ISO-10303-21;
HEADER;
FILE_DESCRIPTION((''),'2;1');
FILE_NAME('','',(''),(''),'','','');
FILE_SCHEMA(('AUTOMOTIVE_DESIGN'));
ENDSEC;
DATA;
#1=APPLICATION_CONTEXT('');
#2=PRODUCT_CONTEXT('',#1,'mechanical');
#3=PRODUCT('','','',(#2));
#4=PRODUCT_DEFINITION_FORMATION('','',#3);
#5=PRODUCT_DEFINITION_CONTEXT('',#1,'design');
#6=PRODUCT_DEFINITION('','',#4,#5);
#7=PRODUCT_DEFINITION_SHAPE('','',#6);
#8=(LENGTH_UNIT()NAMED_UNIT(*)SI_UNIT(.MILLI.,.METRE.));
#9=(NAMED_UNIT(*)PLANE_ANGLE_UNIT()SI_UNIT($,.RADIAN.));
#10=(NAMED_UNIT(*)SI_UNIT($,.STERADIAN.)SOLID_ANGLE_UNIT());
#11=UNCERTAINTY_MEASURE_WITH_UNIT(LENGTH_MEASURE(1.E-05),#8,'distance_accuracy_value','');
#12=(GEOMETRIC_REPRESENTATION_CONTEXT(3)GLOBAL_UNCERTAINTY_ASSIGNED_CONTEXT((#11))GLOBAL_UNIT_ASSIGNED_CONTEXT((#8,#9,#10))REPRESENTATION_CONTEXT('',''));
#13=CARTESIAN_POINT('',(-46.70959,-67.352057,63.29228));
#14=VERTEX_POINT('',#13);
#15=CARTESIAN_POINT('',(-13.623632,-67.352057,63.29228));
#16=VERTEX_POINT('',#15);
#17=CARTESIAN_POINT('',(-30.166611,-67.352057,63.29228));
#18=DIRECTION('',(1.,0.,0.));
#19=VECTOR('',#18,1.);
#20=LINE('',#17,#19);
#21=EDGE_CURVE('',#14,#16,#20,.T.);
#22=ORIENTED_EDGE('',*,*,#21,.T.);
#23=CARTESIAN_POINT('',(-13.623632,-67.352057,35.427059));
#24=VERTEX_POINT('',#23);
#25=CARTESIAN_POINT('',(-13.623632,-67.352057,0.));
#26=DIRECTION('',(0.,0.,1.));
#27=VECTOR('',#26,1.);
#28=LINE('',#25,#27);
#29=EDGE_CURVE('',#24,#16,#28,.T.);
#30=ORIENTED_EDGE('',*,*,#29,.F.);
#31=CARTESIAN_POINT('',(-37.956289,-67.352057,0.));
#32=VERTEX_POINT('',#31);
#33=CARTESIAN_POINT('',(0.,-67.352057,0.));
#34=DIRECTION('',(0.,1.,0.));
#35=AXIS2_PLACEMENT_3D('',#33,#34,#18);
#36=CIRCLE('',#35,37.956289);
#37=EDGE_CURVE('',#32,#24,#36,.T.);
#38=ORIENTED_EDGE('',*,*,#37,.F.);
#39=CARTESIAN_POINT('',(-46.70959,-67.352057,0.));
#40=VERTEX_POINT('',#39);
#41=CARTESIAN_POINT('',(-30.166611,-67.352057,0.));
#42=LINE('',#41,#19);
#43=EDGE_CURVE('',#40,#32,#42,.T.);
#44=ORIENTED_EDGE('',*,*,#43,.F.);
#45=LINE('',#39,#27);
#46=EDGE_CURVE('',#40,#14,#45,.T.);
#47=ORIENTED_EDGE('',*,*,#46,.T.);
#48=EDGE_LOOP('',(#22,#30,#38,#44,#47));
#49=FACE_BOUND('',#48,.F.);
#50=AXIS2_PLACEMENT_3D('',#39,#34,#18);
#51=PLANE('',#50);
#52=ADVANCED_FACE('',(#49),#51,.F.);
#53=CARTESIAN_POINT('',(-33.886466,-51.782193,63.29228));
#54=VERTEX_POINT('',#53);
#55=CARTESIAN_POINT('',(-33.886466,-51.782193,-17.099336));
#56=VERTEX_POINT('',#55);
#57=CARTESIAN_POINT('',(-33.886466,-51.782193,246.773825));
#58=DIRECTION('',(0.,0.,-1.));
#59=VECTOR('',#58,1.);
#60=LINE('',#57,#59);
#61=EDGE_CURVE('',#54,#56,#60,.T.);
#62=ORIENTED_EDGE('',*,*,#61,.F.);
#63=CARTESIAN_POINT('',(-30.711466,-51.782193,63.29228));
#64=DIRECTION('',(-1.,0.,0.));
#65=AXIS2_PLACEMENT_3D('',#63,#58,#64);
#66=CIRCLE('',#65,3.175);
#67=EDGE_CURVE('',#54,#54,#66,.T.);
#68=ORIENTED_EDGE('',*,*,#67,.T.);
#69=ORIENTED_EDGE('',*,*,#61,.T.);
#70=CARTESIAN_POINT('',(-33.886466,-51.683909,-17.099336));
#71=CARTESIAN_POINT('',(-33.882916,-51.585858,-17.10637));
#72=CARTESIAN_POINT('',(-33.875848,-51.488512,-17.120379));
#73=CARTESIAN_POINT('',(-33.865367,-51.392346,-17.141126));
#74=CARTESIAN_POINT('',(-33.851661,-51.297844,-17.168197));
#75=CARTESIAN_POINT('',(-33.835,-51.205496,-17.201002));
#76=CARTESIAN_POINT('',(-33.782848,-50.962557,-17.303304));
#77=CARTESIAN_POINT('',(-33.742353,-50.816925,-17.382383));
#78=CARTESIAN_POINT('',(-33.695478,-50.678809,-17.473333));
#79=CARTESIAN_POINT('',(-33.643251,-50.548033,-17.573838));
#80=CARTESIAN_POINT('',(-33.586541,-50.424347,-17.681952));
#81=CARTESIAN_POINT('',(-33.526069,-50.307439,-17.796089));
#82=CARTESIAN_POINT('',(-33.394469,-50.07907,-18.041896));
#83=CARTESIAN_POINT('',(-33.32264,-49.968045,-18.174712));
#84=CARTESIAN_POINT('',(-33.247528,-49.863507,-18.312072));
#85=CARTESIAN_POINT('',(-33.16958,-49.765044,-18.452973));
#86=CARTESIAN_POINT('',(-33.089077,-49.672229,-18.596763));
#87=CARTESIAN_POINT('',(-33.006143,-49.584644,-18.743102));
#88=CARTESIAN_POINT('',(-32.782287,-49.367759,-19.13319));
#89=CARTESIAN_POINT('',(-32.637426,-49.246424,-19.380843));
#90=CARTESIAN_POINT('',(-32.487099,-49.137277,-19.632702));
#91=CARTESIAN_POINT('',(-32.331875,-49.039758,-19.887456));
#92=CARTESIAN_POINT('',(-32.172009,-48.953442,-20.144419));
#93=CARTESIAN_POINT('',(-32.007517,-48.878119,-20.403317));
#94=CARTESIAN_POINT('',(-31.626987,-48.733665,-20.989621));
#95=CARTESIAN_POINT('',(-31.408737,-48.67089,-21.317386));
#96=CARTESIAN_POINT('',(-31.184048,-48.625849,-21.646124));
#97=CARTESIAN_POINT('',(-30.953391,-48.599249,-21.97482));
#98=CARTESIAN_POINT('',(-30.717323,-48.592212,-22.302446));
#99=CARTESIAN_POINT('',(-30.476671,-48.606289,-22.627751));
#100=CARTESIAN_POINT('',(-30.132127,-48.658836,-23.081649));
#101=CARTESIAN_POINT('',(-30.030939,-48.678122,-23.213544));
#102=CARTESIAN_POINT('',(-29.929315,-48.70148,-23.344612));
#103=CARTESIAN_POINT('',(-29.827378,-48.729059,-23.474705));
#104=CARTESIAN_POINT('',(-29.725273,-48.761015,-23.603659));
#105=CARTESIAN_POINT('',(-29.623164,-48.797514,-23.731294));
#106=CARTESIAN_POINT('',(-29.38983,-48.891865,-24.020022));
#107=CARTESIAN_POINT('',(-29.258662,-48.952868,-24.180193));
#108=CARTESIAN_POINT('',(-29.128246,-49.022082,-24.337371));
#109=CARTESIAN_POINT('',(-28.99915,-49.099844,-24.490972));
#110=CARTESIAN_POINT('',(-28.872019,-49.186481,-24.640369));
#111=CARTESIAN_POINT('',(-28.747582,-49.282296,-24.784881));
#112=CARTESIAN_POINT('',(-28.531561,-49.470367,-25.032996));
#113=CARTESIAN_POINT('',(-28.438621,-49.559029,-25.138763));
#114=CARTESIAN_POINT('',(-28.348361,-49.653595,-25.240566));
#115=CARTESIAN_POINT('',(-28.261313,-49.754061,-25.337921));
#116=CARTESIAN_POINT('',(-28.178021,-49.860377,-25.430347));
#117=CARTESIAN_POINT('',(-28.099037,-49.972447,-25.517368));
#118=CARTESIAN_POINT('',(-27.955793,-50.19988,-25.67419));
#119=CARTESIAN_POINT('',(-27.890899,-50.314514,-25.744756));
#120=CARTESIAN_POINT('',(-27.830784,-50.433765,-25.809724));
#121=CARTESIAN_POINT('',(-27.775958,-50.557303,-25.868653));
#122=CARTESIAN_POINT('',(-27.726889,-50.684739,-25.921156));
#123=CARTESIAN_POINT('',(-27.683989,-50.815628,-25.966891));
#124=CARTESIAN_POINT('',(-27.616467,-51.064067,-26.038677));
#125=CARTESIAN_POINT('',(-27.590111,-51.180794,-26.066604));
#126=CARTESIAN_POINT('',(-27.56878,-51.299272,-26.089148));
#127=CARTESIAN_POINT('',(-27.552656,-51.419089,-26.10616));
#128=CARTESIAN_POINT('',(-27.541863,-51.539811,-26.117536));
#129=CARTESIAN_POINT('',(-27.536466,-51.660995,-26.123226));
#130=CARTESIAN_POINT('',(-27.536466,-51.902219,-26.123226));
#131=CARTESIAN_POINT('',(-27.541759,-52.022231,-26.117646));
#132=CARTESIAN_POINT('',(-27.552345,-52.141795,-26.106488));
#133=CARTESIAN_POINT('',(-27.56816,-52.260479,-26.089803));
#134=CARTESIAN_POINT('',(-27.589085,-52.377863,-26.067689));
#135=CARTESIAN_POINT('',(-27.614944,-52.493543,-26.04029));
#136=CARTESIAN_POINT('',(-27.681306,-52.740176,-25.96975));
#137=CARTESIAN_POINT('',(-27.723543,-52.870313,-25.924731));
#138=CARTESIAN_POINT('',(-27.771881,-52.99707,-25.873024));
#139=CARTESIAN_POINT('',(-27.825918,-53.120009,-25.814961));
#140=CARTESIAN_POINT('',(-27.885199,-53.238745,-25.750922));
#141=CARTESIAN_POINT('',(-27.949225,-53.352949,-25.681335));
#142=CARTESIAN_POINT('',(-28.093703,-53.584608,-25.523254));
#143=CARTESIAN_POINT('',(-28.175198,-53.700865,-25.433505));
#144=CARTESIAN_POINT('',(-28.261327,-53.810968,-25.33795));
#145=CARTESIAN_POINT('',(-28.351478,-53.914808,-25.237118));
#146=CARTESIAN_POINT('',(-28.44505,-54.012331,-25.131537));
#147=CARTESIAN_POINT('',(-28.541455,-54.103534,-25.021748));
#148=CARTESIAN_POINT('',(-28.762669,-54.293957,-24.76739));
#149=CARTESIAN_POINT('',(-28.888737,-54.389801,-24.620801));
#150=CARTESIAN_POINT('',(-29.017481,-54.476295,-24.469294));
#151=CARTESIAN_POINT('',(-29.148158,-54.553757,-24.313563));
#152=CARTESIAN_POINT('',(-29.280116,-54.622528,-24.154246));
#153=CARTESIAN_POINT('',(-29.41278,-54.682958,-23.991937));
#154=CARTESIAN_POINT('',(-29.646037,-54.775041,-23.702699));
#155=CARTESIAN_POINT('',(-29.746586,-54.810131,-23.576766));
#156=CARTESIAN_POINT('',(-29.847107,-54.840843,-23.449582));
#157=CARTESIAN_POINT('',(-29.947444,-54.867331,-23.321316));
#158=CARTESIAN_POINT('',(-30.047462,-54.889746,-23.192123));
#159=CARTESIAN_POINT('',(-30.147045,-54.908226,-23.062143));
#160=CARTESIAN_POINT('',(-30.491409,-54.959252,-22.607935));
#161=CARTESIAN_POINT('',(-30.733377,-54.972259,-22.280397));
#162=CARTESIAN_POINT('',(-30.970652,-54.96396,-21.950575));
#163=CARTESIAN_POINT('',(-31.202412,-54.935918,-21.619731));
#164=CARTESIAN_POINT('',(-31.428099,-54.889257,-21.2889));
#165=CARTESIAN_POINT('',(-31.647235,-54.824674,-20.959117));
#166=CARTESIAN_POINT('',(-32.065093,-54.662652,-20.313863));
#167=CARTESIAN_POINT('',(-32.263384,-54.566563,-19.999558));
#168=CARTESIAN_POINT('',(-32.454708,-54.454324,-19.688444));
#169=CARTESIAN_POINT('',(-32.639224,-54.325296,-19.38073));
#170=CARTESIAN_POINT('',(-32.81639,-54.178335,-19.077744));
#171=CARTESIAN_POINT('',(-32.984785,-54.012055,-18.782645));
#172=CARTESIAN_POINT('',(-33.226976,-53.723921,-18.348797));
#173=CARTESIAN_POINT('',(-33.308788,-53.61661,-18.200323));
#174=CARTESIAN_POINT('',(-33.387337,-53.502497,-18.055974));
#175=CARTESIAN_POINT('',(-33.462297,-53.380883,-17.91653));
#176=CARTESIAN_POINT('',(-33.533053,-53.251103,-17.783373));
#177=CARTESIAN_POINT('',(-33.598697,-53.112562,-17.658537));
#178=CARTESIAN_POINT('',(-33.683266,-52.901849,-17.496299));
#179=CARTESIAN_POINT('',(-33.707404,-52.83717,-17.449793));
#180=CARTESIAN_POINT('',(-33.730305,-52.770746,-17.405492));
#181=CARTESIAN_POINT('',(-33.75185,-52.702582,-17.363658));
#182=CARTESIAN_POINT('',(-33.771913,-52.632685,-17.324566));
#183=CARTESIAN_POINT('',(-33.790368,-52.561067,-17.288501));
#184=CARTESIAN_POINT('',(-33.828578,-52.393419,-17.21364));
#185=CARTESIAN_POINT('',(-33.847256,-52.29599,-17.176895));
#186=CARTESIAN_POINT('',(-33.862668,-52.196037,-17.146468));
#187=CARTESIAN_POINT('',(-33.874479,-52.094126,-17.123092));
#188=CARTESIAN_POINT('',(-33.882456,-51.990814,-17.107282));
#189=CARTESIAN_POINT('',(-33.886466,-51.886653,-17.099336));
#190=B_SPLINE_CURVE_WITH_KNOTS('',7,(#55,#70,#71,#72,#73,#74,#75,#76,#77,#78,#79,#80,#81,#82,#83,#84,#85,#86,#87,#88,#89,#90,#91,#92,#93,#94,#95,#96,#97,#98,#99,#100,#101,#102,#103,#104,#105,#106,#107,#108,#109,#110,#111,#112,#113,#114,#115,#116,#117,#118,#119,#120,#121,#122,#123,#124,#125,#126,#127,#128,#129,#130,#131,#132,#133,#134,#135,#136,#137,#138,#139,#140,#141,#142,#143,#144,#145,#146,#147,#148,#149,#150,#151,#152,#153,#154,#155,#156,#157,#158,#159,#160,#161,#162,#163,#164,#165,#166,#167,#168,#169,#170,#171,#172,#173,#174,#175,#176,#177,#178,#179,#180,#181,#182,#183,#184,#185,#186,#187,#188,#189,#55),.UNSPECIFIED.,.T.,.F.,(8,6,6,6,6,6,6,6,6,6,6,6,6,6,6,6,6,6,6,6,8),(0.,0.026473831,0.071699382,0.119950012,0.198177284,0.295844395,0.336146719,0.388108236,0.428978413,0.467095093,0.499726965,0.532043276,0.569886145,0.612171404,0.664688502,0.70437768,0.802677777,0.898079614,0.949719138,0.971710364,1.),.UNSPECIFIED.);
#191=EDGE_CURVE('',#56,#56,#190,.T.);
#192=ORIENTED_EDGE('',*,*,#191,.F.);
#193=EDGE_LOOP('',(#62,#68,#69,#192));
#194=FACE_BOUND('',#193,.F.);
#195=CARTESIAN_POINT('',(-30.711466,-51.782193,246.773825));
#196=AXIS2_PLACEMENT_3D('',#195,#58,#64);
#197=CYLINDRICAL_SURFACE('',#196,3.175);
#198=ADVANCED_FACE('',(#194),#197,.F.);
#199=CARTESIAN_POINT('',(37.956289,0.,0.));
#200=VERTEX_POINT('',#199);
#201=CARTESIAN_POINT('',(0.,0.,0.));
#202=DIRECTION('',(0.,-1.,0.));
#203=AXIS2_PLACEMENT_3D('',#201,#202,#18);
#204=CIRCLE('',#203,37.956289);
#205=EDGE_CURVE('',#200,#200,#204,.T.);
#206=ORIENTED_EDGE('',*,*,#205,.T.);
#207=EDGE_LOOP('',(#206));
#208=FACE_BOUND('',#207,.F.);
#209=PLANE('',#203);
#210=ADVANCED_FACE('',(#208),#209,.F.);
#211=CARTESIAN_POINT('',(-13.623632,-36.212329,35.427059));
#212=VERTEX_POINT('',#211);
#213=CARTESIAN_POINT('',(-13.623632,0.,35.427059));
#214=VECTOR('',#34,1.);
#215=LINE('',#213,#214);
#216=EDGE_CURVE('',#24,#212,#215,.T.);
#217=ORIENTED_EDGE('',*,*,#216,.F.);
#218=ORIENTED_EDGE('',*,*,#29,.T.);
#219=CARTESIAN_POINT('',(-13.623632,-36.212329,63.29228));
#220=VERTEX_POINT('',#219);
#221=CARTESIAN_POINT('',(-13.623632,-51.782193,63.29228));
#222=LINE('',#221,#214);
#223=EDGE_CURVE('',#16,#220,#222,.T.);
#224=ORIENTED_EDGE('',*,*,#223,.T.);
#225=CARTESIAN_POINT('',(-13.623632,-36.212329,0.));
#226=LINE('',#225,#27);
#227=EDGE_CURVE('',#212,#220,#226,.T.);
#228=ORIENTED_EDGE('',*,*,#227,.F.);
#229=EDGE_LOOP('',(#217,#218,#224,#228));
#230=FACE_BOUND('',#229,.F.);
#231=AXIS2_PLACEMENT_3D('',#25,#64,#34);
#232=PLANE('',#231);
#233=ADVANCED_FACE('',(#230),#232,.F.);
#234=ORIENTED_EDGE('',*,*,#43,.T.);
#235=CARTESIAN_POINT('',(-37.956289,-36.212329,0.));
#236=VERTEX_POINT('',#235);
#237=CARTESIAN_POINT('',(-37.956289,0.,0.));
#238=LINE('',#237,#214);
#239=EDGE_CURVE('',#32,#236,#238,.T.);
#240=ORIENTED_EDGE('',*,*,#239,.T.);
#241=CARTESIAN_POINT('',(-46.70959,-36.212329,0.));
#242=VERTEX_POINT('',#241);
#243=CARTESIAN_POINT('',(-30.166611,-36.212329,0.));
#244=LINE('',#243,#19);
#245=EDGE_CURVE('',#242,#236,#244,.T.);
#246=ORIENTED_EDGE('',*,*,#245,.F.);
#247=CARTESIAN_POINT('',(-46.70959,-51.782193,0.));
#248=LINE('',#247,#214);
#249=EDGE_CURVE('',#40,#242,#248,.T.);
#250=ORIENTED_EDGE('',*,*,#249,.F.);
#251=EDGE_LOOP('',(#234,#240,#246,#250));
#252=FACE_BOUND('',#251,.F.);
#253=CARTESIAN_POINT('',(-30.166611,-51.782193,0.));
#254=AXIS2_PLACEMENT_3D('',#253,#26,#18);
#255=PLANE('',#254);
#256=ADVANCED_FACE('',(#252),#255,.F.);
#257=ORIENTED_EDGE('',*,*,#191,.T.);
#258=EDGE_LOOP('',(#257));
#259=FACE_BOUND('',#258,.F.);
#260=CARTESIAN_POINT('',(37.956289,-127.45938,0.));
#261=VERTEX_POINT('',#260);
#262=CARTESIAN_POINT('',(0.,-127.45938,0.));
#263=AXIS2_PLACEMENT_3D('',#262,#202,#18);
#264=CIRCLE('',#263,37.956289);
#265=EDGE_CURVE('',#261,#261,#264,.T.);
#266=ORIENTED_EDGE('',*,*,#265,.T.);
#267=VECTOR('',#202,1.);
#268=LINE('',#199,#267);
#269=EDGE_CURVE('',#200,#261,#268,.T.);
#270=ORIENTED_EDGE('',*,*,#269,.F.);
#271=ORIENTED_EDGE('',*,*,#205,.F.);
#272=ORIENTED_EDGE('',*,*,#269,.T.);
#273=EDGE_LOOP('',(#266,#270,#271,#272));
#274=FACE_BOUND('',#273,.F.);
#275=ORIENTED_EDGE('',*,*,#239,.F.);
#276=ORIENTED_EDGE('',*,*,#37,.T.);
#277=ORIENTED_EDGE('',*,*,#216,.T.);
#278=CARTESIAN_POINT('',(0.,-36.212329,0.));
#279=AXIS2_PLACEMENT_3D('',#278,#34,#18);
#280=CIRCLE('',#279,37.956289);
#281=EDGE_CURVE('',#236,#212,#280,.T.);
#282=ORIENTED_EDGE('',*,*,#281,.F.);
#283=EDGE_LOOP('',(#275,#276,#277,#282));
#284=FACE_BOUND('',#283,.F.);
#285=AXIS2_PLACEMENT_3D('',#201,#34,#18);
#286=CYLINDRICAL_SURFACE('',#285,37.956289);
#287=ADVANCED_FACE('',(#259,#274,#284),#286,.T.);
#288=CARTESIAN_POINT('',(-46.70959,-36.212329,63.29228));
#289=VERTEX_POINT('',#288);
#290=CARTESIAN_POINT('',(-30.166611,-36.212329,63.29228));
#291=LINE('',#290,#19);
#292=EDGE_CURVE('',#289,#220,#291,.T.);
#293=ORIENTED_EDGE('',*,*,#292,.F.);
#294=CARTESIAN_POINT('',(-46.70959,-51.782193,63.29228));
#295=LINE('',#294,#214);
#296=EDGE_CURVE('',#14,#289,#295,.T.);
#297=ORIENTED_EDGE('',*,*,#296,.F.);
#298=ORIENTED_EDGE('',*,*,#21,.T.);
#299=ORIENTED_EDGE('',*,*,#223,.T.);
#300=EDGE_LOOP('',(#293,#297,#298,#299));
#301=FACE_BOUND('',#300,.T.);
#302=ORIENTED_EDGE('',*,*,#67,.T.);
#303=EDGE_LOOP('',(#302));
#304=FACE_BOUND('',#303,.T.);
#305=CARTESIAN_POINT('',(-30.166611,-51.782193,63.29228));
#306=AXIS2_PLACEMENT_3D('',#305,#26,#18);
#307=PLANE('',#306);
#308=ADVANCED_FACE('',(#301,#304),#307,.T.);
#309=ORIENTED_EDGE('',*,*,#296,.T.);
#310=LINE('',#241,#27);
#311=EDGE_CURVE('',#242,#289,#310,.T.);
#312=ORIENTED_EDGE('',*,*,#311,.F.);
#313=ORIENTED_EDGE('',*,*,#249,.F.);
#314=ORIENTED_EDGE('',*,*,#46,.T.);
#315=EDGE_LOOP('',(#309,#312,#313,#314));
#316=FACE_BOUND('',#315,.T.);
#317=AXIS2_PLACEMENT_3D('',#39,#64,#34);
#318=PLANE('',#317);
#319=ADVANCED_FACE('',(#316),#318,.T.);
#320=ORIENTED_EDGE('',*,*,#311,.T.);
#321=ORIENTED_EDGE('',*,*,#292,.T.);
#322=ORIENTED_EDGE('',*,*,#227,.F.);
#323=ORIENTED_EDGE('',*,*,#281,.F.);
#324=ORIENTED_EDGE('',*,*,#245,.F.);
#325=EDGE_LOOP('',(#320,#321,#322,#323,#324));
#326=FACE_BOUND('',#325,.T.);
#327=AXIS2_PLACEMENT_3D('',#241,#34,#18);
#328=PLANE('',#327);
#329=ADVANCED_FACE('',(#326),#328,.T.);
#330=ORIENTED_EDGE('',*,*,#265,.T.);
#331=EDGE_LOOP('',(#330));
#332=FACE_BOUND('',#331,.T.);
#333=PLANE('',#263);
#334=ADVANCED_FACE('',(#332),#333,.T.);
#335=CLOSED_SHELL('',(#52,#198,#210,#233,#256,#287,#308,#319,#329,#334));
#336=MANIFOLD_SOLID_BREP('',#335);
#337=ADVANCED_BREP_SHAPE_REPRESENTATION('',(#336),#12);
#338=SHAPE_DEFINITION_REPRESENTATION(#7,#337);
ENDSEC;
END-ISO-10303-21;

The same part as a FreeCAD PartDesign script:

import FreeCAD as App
import Part
import Sketcher
Q = App.Units.Quantity

doc = App.newDocument("Part")
body = doc.addObject("PartDesign::Body", "Body")

# Sketch on XZ plane
sketch1 = body.newObject("Sketcher::SketchObject", "Sketch")
sketch1.AttachmentSupport = (doc.getObject("XZ_Plane"), [""])
sketch1.MapMode = "FlatFace"
sketch1.addGeometry(Part.Circle(App.Vector(0, 0, 0), App.Vector(0, 0, 1), 38), False)
sketch1.addConstraint([
    Sketcher.Constraint("Coincident", 0, 3, -1, 1),
    Sketcher.Constraint("Diameter", 0, Q("75.912578 mm")),
])
pad1 = body.newObject("PartDesign::Pad", "Pad")
pad1.Profile = sketch1
pad1.Length = 127.45938

# Sketch on XY plane
sketch2 = body.newObject("Sketcher::SketchObject", "Sketch001")
sketch2.AttachmentSupport = (doc.getObject("XY_Plane"), [""])
sketch2.MapMode = "FlatFace"
sketch2.addGeometry([
    Part.LineSegment(App.Vector(-47, -36, 0), App.Vector(-47, -67, 0)),
    Part.LineSegment(App.Vector(-47, -67, 0), App.Vector(-14, -67, 0)),
    Part.LineSegment(App.Vector(-14, -67, 0), App.Vector(-14, -36, 0)),
    Part.LineSegment(App.Vector(-14, -36, 0), App.Vector(-47, -36, 0)),
], False)
sketch2.addConstraint([
    Sketcher.Constraint("Coincident", 0, 2, 1, 1),
    Sketcher.Constraint("Coincident", 1, 2, 2, 1),
    Sketcher.Constraint("Coincident", 2, 2, 3, 1),
    Sketcher.Constraint("Coincident", 3, 2, 0, 1),
    Sketcher.Constraint("Vertical", 0),
    Sketcher.Constraint("Horizontal", 1),
    Sketcher.Constraint("Vertical", 2),
    Sketcher.Constraint("Horizontal", 3),
    Sketcher.Constraint("DistanceY", 0, 2, 0, 1, Q("31.139728 mm")),
    Sketcher.Constraint("DistanceX", 1, 1, 1, 2, Q("33.085958 mm")),
    Sketcher.Constraint("DistanceX", 0, 2, -1, 1, Q("46.70959 mm")),
    Sketcher.Constraint("DistanceY", 2, 2, -1, 1, Q("36.212329 mm")),
])
pad2 = body.newObject("PartDesign::Pad", "Pad001")
pad2.Profile = sketch2
pad2.Length = 63.29228

# Sketch on XY plane
sketch3 = body.newObject("Sketcher::SketchObject", "Sketch002")
sketch3.AttachmentSupport = (doc.getObject("XY_Plane"), [""])
sketch3.MapMode = "FlatFace"
sketch3.AttachmentOffset = App.Placement(App.Vector(0, 0, 63.29228), App.Rotation())
sketch3.addGeometry(Part.Circle(App.Vector(-30.7, -51.8, 0), App.Vector(0, 0, 1), 3.2), False)
sketch3.addConstraint([
    Sketcher.Constraint("Diameter", 0, Q("0.25 in")),
    Sketcher.Constraint("DistanceX", 0, 3, -1, 1, Q("30.711466 mm")),
    Sketcher.Constraint("DistanceY", 0, 3, -1, 1, Q("51.782193 mm")),
])
doc.recompute()
hole = body.newObject("PartDesign::Hole", "Hole")
hole.Profile = sketch3
hole.ThreadType = "None"
hole.Diameter = Q("0.25 in")
hole.DepthType = "ThroughAll"

doc.recompute()
